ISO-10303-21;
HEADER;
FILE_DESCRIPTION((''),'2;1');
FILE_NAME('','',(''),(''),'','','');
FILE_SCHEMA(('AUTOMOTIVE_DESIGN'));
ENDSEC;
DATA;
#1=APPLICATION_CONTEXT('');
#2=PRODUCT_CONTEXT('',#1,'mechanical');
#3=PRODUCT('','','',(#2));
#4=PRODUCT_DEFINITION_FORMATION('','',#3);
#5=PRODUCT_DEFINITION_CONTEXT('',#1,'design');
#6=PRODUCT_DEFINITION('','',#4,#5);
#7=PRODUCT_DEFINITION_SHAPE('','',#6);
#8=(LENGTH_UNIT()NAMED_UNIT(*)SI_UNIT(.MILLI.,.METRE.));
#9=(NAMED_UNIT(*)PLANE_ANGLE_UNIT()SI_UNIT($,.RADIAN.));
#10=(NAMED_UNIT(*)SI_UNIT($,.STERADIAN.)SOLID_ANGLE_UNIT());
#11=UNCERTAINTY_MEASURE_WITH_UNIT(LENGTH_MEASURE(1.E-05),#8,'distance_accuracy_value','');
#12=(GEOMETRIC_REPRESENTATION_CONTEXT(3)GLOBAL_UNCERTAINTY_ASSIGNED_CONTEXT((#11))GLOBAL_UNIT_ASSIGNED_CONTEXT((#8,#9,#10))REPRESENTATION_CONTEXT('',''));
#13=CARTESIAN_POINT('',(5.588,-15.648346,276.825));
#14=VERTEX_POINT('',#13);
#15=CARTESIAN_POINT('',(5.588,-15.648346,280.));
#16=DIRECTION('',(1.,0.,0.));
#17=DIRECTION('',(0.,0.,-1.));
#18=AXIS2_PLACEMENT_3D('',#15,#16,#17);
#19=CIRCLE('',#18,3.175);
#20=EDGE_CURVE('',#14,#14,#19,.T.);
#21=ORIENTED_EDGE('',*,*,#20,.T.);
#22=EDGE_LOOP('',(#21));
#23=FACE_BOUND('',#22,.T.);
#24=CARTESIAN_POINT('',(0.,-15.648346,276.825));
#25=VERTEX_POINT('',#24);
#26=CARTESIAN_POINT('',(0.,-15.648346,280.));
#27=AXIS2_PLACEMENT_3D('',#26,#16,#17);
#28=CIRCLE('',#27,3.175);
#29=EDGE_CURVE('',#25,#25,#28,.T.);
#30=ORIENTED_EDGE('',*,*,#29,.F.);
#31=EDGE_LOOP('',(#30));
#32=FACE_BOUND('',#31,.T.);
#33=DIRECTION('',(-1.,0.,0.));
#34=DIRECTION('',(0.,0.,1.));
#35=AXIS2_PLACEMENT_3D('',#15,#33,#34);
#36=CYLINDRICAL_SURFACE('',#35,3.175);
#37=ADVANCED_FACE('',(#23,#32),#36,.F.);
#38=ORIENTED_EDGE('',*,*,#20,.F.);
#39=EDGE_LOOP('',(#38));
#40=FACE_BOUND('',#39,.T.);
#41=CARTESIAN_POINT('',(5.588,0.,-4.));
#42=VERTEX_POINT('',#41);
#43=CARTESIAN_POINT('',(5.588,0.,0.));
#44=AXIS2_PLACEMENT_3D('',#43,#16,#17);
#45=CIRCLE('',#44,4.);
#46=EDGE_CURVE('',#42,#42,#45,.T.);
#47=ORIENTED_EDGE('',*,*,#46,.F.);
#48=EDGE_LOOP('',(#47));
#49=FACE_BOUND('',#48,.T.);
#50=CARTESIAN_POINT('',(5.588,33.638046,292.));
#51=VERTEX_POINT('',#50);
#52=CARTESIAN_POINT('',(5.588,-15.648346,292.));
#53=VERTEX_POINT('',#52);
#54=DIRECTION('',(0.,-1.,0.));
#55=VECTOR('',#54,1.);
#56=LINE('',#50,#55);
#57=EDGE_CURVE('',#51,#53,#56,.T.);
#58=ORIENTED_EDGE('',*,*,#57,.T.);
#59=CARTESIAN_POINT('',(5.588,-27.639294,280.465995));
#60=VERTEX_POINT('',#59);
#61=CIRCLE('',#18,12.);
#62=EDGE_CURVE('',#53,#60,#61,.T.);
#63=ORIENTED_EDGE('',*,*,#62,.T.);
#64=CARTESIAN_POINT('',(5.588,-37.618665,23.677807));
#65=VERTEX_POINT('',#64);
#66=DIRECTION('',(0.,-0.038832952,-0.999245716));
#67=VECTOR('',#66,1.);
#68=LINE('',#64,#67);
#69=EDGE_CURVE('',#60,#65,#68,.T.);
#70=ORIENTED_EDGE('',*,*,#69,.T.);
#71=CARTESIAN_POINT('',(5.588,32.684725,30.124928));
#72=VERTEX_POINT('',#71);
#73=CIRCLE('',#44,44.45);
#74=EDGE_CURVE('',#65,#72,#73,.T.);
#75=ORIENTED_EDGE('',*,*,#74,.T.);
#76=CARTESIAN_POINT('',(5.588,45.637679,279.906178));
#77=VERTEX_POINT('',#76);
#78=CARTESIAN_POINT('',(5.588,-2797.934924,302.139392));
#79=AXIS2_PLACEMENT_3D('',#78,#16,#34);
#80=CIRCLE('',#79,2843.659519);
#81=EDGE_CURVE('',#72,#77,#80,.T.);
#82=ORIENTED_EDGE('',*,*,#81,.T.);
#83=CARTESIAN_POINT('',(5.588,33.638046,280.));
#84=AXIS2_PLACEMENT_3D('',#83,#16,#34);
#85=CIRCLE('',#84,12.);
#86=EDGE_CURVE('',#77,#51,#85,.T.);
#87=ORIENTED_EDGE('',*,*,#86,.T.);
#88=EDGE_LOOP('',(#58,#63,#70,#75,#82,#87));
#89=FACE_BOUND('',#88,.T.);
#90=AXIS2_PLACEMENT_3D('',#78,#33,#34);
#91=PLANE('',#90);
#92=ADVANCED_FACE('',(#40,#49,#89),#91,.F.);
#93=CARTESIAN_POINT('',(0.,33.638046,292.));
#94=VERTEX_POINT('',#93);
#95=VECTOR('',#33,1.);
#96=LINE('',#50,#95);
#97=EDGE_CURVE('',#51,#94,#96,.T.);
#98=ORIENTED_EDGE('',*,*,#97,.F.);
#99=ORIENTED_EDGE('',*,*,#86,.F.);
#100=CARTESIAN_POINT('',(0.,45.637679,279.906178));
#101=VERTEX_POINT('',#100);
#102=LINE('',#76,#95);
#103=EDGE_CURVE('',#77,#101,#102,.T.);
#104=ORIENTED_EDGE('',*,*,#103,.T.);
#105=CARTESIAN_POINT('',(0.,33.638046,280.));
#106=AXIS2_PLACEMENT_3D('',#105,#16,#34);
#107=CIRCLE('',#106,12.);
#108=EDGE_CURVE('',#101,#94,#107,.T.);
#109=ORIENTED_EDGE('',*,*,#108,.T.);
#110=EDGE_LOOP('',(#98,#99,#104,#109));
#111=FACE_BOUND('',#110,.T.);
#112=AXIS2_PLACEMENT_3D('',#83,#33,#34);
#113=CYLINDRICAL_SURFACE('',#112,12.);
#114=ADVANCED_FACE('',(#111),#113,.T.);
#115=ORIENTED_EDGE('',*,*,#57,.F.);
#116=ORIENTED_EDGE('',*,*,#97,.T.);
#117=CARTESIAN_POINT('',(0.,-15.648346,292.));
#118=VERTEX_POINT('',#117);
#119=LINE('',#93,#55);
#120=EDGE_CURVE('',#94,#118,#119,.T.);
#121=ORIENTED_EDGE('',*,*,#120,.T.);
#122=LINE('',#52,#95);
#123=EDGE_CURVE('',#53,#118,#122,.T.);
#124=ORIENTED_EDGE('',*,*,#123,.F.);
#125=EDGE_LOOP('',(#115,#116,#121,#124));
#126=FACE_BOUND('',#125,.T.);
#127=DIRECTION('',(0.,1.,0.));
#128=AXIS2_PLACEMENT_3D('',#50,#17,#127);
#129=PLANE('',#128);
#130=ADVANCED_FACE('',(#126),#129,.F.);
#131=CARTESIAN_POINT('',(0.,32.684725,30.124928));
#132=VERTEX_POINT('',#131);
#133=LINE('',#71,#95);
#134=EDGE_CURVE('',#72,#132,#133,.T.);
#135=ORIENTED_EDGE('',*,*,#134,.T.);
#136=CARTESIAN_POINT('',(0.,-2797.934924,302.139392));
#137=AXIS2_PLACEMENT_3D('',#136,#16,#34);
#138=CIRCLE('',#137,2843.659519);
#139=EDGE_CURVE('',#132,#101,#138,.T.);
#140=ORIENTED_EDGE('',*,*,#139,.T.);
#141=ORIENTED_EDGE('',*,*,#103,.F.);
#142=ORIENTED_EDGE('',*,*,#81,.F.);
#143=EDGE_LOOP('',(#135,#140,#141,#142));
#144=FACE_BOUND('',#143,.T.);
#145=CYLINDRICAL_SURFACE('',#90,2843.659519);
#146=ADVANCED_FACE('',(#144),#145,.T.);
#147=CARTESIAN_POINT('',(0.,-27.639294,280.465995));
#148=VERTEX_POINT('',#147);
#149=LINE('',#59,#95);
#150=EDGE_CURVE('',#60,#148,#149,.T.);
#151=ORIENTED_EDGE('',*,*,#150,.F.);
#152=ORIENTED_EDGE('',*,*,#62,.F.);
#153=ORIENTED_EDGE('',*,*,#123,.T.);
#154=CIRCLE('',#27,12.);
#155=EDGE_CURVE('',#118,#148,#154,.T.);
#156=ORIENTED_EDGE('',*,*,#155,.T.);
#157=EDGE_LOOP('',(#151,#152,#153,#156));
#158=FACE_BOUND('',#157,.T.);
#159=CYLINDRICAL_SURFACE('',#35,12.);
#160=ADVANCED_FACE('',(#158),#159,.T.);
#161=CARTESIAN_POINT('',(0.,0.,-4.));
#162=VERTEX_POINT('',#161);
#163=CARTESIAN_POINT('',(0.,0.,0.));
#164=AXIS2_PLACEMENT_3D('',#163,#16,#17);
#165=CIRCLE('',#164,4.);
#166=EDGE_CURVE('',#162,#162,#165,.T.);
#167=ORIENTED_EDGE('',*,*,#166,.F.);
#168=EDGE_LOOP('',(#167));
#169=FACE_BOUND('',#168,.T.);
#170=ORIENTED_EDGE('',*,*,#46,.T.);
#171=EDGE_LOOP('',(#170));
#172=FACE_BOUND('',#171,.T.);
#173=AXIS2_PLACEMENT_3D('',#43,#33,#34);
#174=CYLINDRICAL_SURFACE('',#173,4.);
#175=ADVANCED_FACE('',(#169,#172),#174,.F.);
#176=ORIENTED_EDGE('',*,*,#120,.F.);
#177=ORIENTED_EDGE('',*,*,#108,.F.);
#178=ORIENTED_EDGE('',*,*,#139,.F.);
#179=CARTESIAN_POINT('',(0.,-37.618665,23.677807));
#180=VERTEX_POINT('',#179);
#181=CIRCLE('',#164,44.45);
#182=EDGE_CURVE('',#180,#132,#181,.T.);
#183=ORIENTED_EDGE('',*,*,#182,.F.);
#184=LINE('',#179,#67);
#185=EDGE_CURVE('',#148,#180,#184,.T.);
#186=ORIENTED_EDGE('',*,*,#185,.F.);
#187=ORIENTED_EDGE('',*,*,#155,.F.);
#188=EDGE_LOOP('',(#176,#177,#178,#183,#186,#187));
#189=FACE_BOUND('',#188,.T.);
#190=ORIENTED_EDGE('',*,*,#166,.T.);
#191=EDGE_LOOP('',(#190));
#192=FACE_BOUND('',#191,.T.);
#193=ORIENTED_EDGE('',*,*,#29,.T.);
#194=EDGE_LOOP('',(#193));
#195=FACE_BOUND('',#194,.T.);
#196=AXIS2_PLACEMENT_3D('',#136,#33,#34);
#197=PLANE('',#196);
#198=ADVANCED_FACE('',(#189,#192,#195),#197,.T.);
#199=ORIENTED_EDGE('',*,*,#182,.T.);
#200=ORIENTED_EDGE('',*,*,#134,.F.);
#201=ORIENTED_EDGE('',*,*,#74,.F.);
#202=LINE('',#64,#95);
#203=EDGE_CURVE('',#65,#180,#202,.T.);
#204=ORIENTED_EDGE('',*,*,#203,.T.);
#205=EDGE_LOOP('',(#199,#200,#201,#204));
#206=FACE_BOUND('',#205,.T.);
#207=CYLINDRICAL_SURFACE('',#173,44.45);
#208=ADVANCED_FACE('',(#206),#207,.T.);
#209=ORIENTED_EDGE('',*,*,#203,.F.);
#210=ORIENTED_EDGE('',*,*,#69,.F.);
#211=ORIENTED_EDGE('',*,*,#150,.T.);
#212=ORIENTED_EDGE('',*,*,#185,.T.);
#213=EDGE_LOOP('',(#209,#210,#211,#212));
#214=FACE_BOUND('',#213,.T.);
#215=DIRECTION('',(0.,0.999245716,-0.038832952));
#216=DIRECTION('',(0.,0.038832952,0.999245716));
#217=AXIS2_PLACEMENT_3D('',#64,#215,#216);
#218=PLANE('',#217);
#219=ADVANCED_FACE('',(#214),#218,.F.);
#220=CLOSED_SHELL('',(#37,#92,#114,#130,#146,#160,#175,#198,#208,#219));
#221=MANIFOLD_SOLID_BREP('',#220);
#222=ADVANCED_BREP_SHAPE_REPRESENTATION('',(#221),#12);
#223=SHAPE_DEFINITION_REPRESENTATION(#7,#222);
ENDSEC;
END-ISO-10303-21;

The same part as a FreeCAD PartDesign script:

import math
import FreeCAD as App
import Part
import Sketcher

V = App.Vector
Q = App.Units.Quantity

doc = App.newDocument("Part")
body = doc.addObject("PartDesign::Body", "Body")

sketch1 = doc.addObject("Sketcher::SketchObject", "Sketch")
body.addObject(sketch1)
sketch1.AttachmentSupport = (doc.YZ_Plane, [""])
sketch1.MapMode = "FlatFace"
sketch1.addGeometry([
    Part.LineSegment(V(33.6, 292, 0), V(-15.6, 292, 0)),
    Part.ArcOfCircle(Part.Circle(V(-15.6, 280, 0), V(0, 0, 1), 12), math.radians(90), math.radians(178)),
    Part.LineSegment(V(-27.6, 280.5, 0), V(-37.6, 23.7, 0)),
    Part.ArcOfCircle(Part.Circle(V(0, 0, 0), V(0, 0, 1), 44.5), math.radians(148), math.radians(403)),
    Part.ArcOfCircle(Part.Circle(V(-2797.9, 302.1, 0), V(0, 0, 1), 2843.7), math.radians(-5.49), math.radians(-0.45)),
    Part.ArcOfCircle(Part.Circle(V(33.6, 280, 0), V(0, 0, 1), 12), math.radians(0), math.radians(90)),
    Part.Circle(V(-15.6, 280, 0), V(0, 0, 1), 3.2),
    Part.Circle(V(0, 0, 0), V(0, 0, 1), 4),
], False)
sketch1.addConstraint([
    Sketcher.Constraint("Tangent", 0, 2, 1, 1),
    Sketcher.Constraint("Tangent", 1, 2, 2, 1),
    Sketcher.Constraint("Coincident", 2, 2, 3, 1),
    Sketcher.Constraint("Coincident", 3, 2, 4, 1),
    Sketcher.Constraint("Tangent", 4, 2, 5, 1),
    Sketcher.Constraint("Tangent", 5, 2, 0, 1),
    Sketcher.Constraint("Horizontal", 0),
    Sketcher.Constraint("Coincident", 3, 3, -1, 1),
    Sketcher.Constraint("Coincident", 7, 3, -1, 1),
    Sketcher.Constraint("Coincident", 6, 3, 1, 3),
    Sketcher.Constraint("Equal", 1, 5),
    Sketcher.Constraint("Diameter", 6, Q("0.25 in")),
    Sketcher.Constraint("Radius", 3, Q("1.75 in")),
    Sketcher.Constraint("Diameter", 7, 8.0),
    Sketcher.Constraint("Radius", 1, 12.0),
    Sketcher.Constraint("Radius", 4, 2843.659519),
    Sketcher.Constraint("DistanceX", -1, 1, 3, 2, Q("1.2868002 in")),
    Sketcher.Constraint("DistanceX", 0, 2, 0, 1, 49.286391),
    Sketcher.Constraint("DistanceY", -1, 1, 1, 3, 280.0),
    Sketcher.Constraint("DistanceX", -1, 1, 4, 2, 45.637679),
    Sketcher.Constraint("DistanceX", 2, 2, 1, 2, 9.979371),
])
pad1 = doc.addObject("PartDesign::Pad", "Pad")
body.addObject(pad1)
pad1.Profile = sketch1
pad1.Length = Q("0.22 in")

doc.recompute()
